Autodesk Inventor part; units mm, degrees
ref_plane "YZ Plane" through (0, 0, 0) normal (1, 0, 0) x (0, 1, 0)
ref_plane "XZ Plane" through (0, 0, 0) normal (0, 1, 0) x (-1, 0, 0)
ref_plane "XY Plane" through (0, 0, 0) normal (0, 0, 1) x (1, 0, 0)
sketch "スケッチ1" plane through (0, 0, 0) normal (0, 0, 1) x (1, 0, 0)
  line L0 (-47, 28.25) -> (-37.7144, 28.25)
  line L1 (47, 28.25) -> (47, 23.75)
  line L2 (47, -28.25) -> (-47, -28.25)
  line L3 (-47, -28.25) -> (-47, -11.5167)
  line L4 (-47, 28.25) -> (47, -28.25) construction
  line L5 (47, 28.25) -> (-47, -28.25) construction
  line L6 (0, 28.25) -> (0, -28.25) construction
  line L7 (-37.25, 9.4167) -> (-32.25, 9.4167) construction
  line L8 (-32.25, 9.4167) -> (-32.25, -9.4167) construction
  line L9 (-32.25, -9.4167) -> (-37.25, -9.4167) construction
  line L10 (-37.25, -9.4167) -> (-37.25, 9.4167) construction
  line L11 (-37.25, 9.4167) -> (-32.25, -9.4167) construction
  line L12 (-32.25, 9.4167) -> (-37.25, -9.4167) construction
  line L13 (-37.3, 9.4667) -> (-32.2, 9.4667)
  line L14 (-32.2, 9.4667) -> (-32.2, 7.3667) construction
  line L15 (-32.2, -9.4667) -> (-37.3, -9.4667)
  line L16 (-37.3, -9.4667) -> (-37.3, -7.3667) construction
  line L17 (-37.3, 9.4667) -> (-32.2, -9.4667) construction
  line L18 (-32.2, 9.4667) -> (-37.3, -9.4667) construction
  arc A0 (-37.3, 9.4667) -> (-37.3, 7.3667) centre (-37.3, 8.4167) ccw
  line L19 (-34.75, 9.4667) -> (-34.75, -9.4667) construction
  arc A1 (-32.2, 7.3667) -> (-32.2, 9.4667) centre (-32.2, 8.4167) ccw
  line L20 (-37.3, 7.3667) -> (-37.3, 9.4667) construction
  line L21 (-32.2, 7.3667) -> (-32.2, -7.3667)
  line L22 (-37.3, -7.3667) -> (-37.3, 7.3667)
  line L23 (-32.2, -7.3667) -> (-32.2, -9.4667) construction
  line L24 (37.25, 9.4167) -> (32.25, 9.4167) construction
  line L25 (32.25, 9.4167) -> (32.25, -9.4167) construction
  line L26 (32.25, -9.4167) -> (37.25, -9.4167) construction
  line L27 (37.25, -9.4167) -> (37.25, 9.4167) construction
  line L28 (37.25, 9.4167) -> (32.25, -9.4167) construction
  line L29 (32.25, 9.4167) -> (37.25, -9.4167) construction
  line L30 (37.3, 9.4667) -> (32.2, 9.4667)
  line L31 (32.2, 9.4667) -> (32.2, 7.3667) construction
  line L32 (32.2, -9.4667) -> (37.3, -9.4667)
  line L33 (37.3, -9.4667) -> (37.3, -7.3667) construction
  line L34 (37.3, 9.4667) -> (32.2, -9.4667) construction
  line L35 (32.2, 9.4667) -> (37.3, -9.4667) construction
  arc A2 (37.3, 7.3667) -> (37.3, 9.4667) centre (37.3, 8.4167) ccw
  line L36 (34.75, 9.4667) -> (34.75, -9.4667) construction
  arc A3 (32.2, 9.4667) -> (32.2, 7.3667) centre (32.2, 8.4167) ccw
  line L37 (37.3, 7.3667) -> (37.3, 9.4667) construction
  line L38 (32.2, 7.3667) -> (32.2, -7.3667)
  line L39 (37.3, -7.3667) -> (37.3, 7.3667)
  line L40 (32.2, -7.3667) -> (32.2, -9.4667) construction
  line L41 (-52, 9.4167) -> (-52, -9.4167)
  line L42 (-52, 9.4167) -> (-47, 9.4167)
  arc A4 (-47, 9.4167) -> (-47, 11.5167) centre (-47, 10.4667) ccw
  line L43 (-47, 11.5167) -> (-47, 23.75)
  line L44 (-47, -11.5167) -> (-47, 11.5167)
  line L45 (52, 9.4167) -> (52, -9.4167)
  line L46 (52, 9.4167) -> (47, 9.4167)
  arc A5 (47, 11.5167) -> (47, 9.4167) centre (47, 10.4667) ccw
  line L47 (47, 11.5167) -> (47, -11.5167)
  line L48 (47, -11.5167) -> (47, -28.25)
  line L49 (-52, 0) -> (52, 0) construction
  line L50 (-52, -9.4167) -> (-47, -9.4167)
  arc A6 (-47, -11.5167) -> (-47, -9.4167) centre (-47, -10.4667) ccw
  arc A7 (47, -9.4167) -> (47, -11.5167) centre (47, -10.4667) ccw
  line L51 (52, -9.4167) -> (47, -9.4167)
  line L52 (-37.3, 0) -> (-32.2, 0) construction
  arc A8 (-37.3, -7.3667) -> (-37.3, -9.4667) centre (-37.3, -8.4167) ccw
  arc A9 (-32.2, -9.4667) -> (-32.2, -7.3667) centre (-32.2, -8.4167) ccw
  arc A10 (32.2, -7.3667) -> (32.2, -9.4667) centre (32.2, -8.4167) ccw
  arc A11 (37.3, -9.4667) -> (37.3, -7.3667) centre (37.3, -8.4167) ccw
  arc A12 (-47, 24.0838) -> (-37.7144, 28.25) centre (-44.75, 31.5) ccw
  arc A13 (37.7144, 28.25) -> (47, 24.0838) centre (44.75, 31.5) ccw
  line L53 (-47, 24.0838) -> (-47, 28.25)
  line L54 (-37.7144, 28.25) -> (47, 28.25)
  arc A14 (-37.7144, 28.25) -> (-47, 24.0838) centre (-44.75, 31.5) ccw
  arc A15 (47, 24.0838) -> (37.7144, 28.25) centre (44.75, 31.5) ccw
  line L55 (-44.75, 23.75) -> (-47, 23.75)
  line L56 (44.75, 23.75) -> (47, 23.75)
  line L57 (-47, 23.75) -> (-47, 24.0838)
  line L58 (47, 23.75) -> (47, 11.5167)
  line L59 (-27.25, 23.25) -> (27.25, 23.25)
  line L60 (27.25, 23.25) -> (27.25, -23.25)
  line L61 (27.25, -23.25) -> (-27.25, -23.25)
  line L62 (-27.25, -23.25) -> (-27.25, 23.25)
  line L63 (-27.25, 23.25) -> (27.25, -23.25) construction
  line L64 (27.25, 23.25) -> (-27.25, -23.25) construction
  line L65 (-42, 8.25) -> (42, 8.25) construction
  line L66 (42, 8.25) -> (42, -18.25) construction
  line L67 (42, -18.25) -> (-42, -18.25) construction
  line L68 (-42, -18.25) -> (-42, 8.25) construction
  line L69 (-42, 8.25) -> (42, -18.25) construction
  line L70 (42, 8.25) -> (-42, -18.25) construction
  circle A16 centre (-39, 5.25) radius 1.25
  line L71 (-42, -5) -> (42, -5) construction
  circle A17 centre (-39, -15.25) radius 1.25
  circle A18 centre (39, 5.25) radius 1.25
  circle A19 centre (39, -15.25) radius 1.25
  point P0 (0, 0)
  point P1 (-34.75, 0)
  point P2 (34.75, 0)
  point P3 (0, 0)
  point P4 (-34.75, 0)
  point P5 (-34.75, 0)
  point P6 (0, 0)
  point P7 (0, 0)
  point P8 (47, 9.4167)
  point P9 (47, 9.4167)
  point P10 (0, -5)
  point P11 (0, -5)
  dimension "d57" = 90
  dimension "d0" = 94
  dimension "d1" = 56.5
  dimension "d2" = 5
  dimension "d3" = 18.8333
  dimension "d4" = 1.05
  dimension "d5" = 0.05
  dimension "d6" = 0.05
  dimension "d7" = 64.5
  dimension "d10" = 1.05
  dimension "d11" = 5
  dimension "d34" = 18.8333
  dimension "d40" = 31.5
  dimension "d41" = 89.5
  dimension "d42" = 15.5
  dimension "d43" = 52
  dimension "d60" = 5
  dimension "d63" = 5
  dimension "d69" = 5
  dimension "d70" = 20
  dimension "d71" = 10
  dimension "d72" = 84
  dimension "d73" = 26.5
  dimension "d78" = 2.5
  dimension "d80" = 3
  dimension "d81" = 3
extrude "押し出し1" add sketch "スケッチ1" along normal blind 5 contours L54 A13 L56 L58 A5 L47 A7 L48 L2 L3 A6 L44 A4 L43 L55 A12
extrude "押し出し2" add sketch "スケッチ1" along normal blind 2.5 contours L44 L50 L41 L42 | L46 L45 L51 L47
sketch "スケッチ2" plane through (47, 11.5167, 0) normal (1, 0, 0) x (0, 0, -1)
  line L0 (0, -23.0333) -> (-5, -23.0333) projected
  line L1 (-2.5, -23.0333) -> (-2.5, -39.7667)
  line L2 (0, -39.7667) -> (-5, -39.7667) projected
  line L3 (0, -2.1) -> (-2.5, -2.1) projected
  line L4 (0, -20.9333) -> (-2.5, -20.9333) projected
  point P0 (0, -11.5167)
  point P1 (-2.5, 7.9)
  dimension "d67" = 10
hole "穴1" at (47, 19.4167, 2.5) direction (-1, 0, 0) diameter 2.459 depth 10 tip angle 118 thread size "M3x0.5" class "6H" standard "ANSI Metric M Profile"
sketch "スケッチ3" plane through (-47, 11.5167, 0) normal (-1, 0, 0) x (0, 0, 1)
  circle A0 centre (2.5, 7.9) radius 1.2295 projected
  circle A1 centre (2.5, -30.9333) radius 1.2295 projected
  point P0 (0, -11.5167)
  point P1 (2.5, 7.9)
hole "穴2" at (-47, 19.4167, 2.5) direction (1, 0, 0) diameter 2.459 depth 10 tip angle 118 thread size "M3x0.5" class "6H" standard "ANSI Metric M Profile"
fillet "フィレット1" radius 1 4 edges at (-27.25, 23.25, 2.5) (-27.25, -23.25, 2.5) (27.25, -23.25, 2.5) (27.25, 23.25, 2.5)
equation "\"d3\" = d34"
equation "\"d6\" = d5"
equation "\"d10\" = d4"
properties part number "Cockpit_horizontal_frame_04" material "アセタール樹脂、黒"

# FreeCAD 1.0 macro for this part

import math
import FreeCAD as App
import Part
import Sketcher
Q = App.Units.Quantity


def edges_at(feature, points):
    """Names of the edges that pass closest to the given points."""
    edges = feature.Shape.Edges
    near = lambda p: min(range(len(edges)), key=lambda i: edges[i].distToShape(Part.Vertex(*p))[0])
    return sorted({f"Edge{near(p) + 1}" for p in points})

doc = App.newDocument("Part")
params = doc.addObject("Spreadsheet::Sheet", "Params")
for row, (alias, value) in enumerate([
    ("sketch1_diameter", "2.5 mm"),
    ("sketch1_width", "94 mm"),
    ("sketch1_radius", "7.75 mm"),
    ("sketch1_radius2", "1.05 mm"),
    ("sketch1_width2", "5.1 mm"),
    ("pad1_length", "5 mm"),
    ("sketch2_width", "5 mm"),
    ("pad2_length", "2.5 mm"),
    ("hole_diameter", "2.459 mm"),
    ("hole_depth", "10 mm"),
    ("hole2_diameter", "2.459 mm"),
    ("hole2_depth", "10 mm"),
    ("fillet_radius", "1 mm"),
], start=1):
    params.set(f"A{row}", alias)
    params.set(f"B{row}", "=" + value)
    params.setAlias(f"B{row}", alias)

body = doc.addObject("PartDesign::Body", "Body")

# Sketch on XY plane
sketch1 = body.newObject("Sketcher::SketchObject", "Sketch")
sketch1.AttachmentSupport = (doc.getObject("XY_Plane"), [""])
sketch1.MapMode = "FlatFace"
sketch1.addGeometry(Part.LineSegment(App.Vector(37.7, 28.2, 0), App.Vector(-37.7, 28.2, 0)), False)
sketch1.addGeometry(Part.ArcOfCircle(Part.Circle(App.Vector(-44.8, 31.5, 0), App.Vector(0, 0, 1), 7.7), math.radians(-90), math.radians(-25)), False)
sketch1.addGeometry(Part.LineSegment(App.Vector(-44.8, 23.8, 0), App.Vector(-47, 23.8, 0)), False)
sketch1.addGeometry(Part.LineSegment(App.Vector(-47, 23.8, 0), App.Vector(-47, 11.5, 0)), False)
sketch1.addGeometry(Part.ArcOfCircle(Part.Circle(App.Vector(-47, 10.5, 0), App.Vector(0, 0, 1), 1), math.radians(-90), math.radians(90)), False)
sketch1.addGeometry(Part.LineSegment(App.Vector(-47, 9.4, 0), App.Vector(-47, -9.4, 0)), False)
sketch1.addGeometry(Part.ArcOfCircle(Part.Circle(App.Vector(-47, -10.5, 0), App.Vector(0, 0, 1), 1.1), math.radians(-90), math.radians(90)), False)
sketch1.addGeometry(Part.LineSegment(App.Vector(-47, -11.5, 0), App.Vector(-47, -28.2, 0)), False)
sketch1.addGeometry(Part.LineSegment(App.Vector(-47, -28.2, 0), App.Vector(47, -28.2, 0)), False)
sketch1.addGeometry(Part.LineSegment(App.Vector(47, -28.2, 0), App.Vector(47, -11.5, 0)), False)
sketch1.addGeometry(Part.ArcOfCircle(Part.Circle(App.Vector(47, -10.5, 0), App.Vector(0, 0, 1), 1), math.radians(90), math.radians(270)), False)
sketch1.addGeometry(Part.LineSegment(App.Vector(47, -9.4, 0), App.Vector(47, 9.4, 0)), False)
sketch1.addGeometry(Part.ArcOfCircle(Part.Circle(App.Vector(47, 10.5, 0), App.Vector(0, 0, 1), 1.1), math.radians(90), math.radians(270)), False)
sketch1.addGeometry(Part.LineSegment(App.Vector(47, 11.5, 0), App.Vector(47, 23.8, 0)), False)
sketch1.addGeometry(Part.LineSegment(App.Vector(47, 23.8, 0), App.Vector(44.8, 23.8, 0)), False)
sketch1.addGeometry(Part.ArcOfCircle(Part.Circle(App.Vector(44.8, 31.5, 0), App.Vector(0, 0, 1), 7.8), math.radians(-155), math.radians(-90)), False)
sketch1.addGeometry(Part.Circle(App.Vector(-39, -15.2, 0), App.Vector(0, 0, 1), 1.2), False)
sketch1.addGeometry(Part.ArcOfCircle(Part.Circle(App.Vector(-37.3, 8.4, 0), App.Vector(0, 0, 1), 1), math.radians(90), math.radians(270)), False)
sketch1.addGeometry(Part.LineSegment(App.Vector(-37.3, 9.5, 0), App.Vector(-32.2, 9.5, 0)), False)
sketch1.addGeometry(Part.ArcOfCircle(Part.Circle(App.Vector(-32.2, 8.4, 0), App.Vector(0, 0, 1), 1.1), math.radians(-90), math.radians(90)), False)
sketch1.addGeometry(Part.LineSegment(App.Vector(-32.2, 7.4, 0), App.Vector(-32.2, -7.4, 0)), False)
sketch1.addGeometry(Part.ArcOfCircle(Part.Circle(App.Vector(-32.2, -8.4, 0), App.Vector(0, 0, 1), 1), math.radians(-90), math.radians(90)), False)
sketch1.addGeometry(Part.LineSegment(App.Vector(-32.2, -9.5, 0), App.Vector(-37.3, -9.5, 0)), False)
sketch1.addGeometry(Part.ArcOfCircle(Part.Circle(App.Vector(-37.3, -8.4, 0), App.Vector(0, 0, 1), 1.1), math.radians(90), math.radians(270)), False)
sketch1.addGeometry(Part.LineSegment(App.Vector(-37.3, -7.4, 0), App.Vector(-37.3, 7.4, 0)), False)
sketch1.addGeometry(Part.Circle(App.Vector(-39, 5.2, 0), App.Vector(0, 0, 1), 1.2), False)
sketch1.addGeometry(Part.LineSegment(App.Vector(-27.2, -23.2, 0), App.Vector(-27.2, 23.2, 0)), False)
sketch1.addGeometry(Part.LineSegment(App.Vector(-27.2, 23.2, 0), App.Vector(27.2, 23.2, 0)), False)
sketch1.addGeometry(Part.LineSegment(App.Vector(27.2, 23.2, 0), App.Vector(27.2, -23.2, 0)), False)
sketch1.addGeometry(Part.LineSegment(App.Vector(27.2, -23.2, 0), App.Vector(-27.2, -23.2, 0)), False)
sketch1.addGeometry(Part.Circle(App.Vector(39, -15.2, 0), App.Vector(0, 0, 1), 1.2), False)
sketch1.addGeometry(Part.LineSegment(App.Vector(32.2, 9.5, 0), App.Vector(37.3, 9.5, 0)), False)
sketch1.addGeometry(Part.ArcOfCircle(Part.Circle(App.Vector(37.3, 8.4, 0), App.Vector(0, 0, 1), 1.1), math.radians(-90), math.radians(90)), False)
sketch1.addGeometry(Part.LineSegment(App.Vector(37.3, 7.4, 0), App.Vector(37.3, -7.4, 0)), False)
sketch1.addGeometry(Part.ArcOfCircle(Part.Circle(App.Vector(37.3, -8.4, 0), App.Vector(0, 0, 1), 1), math.radians(-90), math.radians(90)), False)
sketch1.addGeometry(Part.LineSegment(App.Vector(37.3, -9.5, 0), App.Vector(32.2, -9.5, 0)), False)
sketch1.addGeometry(Part.ArcOfCircle(Part.Circle(App.Vector(32.2, -8.4, 0), App.Vector(0, 0, 1), 1.1), math.radians(90), math.radians(270)), False)
sketch1.addGeometry(Part.LineSegment(App.Vector(32.2, -7.4, 0), App.Vector(32.2, 7.4, 0)), False)
sketch1.addGeometry(Part.ArcOfCircle(Part.Circle(App.Vector(32.2, 8.4, 0), App.Vector(0, 0, 1), 1), math.radians(90), math.radians(270)), False)
sketch1.addGeometry(Part.Circle(App.Vector(39, 5.2, 0), App.Vector(0, 0, 1), 1.2), False)
sketch1.addConstraint(Sketcher.Constraint("Coincident", 0, 2, 1, 2))
sketch1.addConstraint(Sketcher.Constraint("Tangent", 1, 1, 2, 1))
sketch1.addConstraint(Sketcher.Constraint("Coincident", 2, 2, 3, 1))
sketch1.addConstraint(Sketcher.Constraint("Coincident", 3, 2, 4, 2))
sketch1.addConstraint(Sketcher.Constraint("Coincident", 4, 1, 5, 1))
sketch1.addConstraint(Sketcher.Constraint("Coincident", 5, 2, 6, 2))
sketch1.addConstraint(Sketcher.Constraint("Coincident", 6, 1, 7, 1))
sketch1.addConstraint(Sketcher.Constraint("Coincident", 7, 2, 8, 1))
sketch1.addConstraint(Sketcher.Constraint("Coincident", 8, 2, 9, 1))
sketch1.addConstraint(Sketcher.Constraint("Coincident", 9, 2, 10, 2))
sketch1.addConstraint(Sketcher.Constraint("Coincident", 10, 1, 11, 1))
sketch1.addConstraint(Sketcher.Constraint("Coincident", 11, 2, 12, 2))
sketch1.addConstraint(Sketcher.Constraint("Coincident", 12, 1, 13, 1))
sketch1.addConstraint(Sketcher.Constraint("Coincident", 13, 2, 14, 1))
sketch1.addConstraint(Sketcher.Constraint("Tangent", 14, 2, 15, 2))
sketch1.addConstraint(Sketcher.Constraint("Coincident", 15, 1, 0, 1))
sketch1.addConstraint(Sketcher.Constraint("Tangent", 17, 1, 18, 1))
sketch1.addConstraint(Sketcher.Constraint("Tangent", 18, 2, 19, 2))
sketch1.addConstraint(Sketcher.Constraint("Coincident", 19, 1, 20, 1))
sketch1.addConstraint(Sketcher.Constraint("Coincident", 20, 2, 21, 2))
sketch1.addConstraint(Sketcher.Constraint("Tangent", 21, 1, 22, 1))
sketch1.addConstraint(Sketcher.Constraint("Tangent", 22, 2, 23, 2))
sketch1.addConstraint(Sketcher.Constraint("Coincident", 23, 1, 24, 1))
sketch1.addConstraint(Sketcher.Constraint("Coincident", 24, 2, 17, 2))
sketch1.addConstraint(Sketcher.Constraint("Coincident", 26, 2, 27, 1))
sketch1.addConstraint(Sketcher.Constraint("Coincident", 27, 2, 28, 1))
sketch1.addConstraint(Sketcher.Constraint("Coincident", 28, 2, 29, 1))
sketch1.addConstraint(Sketcher.Constraint("Coincident", 29, 2, 26, 1))
sketch1.addConstraint(Sketcher.Constraint("Tangent", 31, 2, 32, 2))
sketch1.addConstraint(Sketcher.Constraint("Coincident", 32, 1, 33, 1))
sketch1.addConstraint(Sketcher.Constraint("Coincident", 33, 2, 34, 2))
sketch1.addConstraint(Sketcher.Constraint("Tangent", 34, 1, 35, 1))
sketch1.addConstraint(Sketcher.Constraint("Tangent", 35, 2, 36, 2))
sketch1.addConstraint(Sketcher.Constraint("Coincident", 36, 1, 37, 1))
sketch1.addConstraint(Sketcher.Constraint("Coincident", 37, 2, 38, 2))
sketch1.addConstraint(Sketcher.Constraint("Tangent", 38, 1, 31, 1))
sketch1.addConstraint(Sketcher.Constraint("Horizontal", 0))
sketch1.addConstraint(Sketcher.Constraint("Horizontal", 2))
sketch1.addConstraint(Sketcher.Constraint("Vertical", 3))
sketch1.addConstraint(Sketcher.Constraint("Vertical", 5))
sketch1.addConstraint(Sketcher.Constraint("Vertical", 7))
sketch1.addConstraint(Sketcher.Constraint("Horizontal", 8))
sketch1.addConstraint(Sketcher.Constraint("Vertical", 9))
sketch1.addConstraint(Sketcher.Constraint("Vertical", 11))
sketch1.addConstraint(Sketcher.Constraint("Vertical", 13))
sketch1.addConstraint(Sketcher.Constraint("Horizontal", 14))
sketch1.addConstraint(Sketcher.Constraint("Horizontal", 18))
sketch1.addConstraint(Sketcher.Constraint("Vertical", 20))
sketch1.addConstraint(Sketcher.Constraint("Horizontal", 22))
sketch1.addConstraint(Sketcher.Constraint("Vertical", 24))
sketch1.addConstraint(Sketcher.Constraint("Vertical", 26))
sketch1.addConstraint(Sketcher.Constraint("Horizontal", 27))
sketch1.addConstraint(Sketcher.Constraint("Vertical", 28))
sketch1.addConstraint(Sketcher.Constraint("Horizontal", 29))
sketch1.addConstraint(Sketcher.Constraint("Horizontal", 31))
sketch1.addConstraint(Sketcher.Constraint("Vertical", 33))
sketch1.addConstraint(Sketcher.Constraint("Horizontal", 35))
sketch1.addConstraint(Sketcher.Constraint("Vertical", 37))
sketch1.addConstraint(Sketcher.Constraint("Equal", 4, 6))
sketch1.addConstraint(Sketcher.Constraint("Equal", 6, 10))
sketch1.addConstraint(Sketcher.Constraint("Equal", 10, 12))
sketch1.addConstraint(Sketcher.Constraint("Equal", 1, 15))
sketch1.addConstraint(Sketcher.Constraint("Equal", 12, 17))
sketch1.addConstraint(Sketcher.Constraint("Equal", 17, 19))
sketch1.addConstraint(Sketcher.Constraint("Equal", 19, 21))
sketch1.addConstraint(Sketcher.Constraint("Equal", 21, 23))
sketch1.addConstraint(Sketcher.Constraint("Equal", 16, 25))
sketch1.addConstraint(Sketcher.Constraint("Equal", 25, 30))
sketch1.addConstraint(Sketcher.Constraint("Equal", 23, 32))
sketch1.addConstraint(Sketcher.Constraint("Equal", 32, 34))
sketch1.addConstraint(Sketcher.Constraint("Equal", 34, 36))
sketch1.addConstraint(Sketcher.Constraint("Equal", 36, 38))
sketch1.addConstraint(Sketcher.Constraint("Equal", 30, 39))
sketch1.addConstraint(Sketcher.Constraint("Symmetric", 4, 3, 10, 3, -1, 1))
sketch1.addConstraint(Sketcher.Constraint("Symmetric", 6, 3, 12, 3, -1, 1))
sketch1.addConstraint(Sketcher.Constraint("Symmetric", 23, 3, 32, 3, -1, 1))
sketch1.addConstraint(Sketcher.Constraint("Symmetric", 17, 3, 34, 3, -1, 1))
sketch1.addConstraint(Sketcher.Constraint("Symmetric", 26, 2, 28, 2, -1, 1))
sketch1.addConstraint(Sketcher.Constraint("Symmetric", 6, 3, 10, 3, -2))
sketch1.addConstraint(Sketcher.Constraint("Symmetric", 1, 3, 15, 3, -2))
sketch1.addConstraint(Sketcher.Constraint("Symmetric", 16, 3, 30, 3, -2))
sketch1.addConstraint(Sketcher.Constraint("Symmetric", 17, 3, 32, 3, -2))
sketch1.addConstraint(Sketcher.Constraint("Symmetric", 25, 3, 39, 3, -2))
sketch1.addConstraint(Sketcher.Constraint("Vertical", 19, 3, 21, 3))
sketch1.addConstraint(Sketcher.Constraint("Vertical", 16, 3, 25, 3))
sketch1.addConstraint(Sketcher.Constraint("Vertical", 36, 3, 38, 3))
sketch1.addConstraint(Sketcher.Constraint("Vertical", 6, 3, 2, 2))
sketch1.addConstraint(Sketcher.Constraint("Vertical", 3, 2, 4, 1))
sketch1.addConstraint(Sketcher.Constraint("Vertical", 5, 2, 6, 1))
sketch1.addConstraint(Sketcher.Constraint("Vertical", 12, 3, 8, 2))
sketch1.addConstraint(Sketcher.Constraint("Vertical", 9, 2, 10, 1))
sketch1.addConstraint(Sketcher.Constraint("Vertical", 11, 2, 12, 1))
sketch1.addConstraint(Sketcher.Constraint("Vertical", 18, 2, 19, 1))
sketch1.addConstraint(Sketcher.Constraint("Vertical", 22, 2, 23, 1))
sketch1.addConstraint(Sketcher.Constraint("Vertical", 31, 2, 32, 1))
sketch1.addConstraint(Sketcher.Constraint("Vertical", 35, 2, 36, 1))
sketch1.addConstraint(Sketcher.Constraint("Equal", 22, 31))
sketch1.addConstraint(Sketcher.Constraint("Diameter", 16, Q("2.5 mm")))
sketch1.addConstraint(Sketcher.Constraint("DistanceX", 8, 1, 8, 2, Q("94 mm")))
sketch1.addConstraint(Sketcher.Constraint("Radius", 1, Q("7.75 mm")))
sketch1.addConstraint(Sketcher.Constraint("Radius", 4, Q("1.05 mm")))
sketch1.addConstraint(Sketcher.Constraint("DistanceY", 26, 2, 0, 2, Q("5 mm")))
sketch1.addConstraint(Sketcher.Constraint("DistanceY", 8, 2, 28, 2, Q("5 mm")))
sketch1.addConstraint(Sketcher.Constraint("DistanceY", -1, 1, 1, 3, Q("31.5 mm")))
sketch1.addConstraint(Sketcher.Constraint("DistanceX", 1, 3, 15, 3, Q("89.5 mm")))
sketch1.addConstraint(Sketcher.Constraint("DistanceY", 4, 1, 17, 1, Q("0.05 mm")))
sketch1.addConstraint(Sketcher.Constraint("DistanceX", 18, 1, 18, 2, Q("5.1 mm")))
sketch1.addConstraint(Sketcher.Constraint("DistanceX", 27, 1, 27, 2, Q("54.5 mm")))
sketch1.addConstraint(Sketcher.Constraint("DistanceY", 5, 2, 5, 1, Q("18.8334 mm")))
sketch1.addConstraint(Sketcher.Constraint("DistanceY", 26, 1, 26, 2, Q("46.5 mm")))
sketch1.addConstraint(Sketcher.Constraint("DistanceX", 16, 3, -1, 1, Q("39 mm")))
sketch1.addConstraint(Sketcher.Constraint("DistanceY", 25, 3, 0, 2, Q("23 mm")))
sketch1.addConstraint(Sketcher.Constraint("DistanceY", 7, 2, 16, 3, Q("13 mm")))
sketch1.addConstraint(Sketcher.Constraint("DistanceX", 17, 3, -1, 1, Q("37.3 mm")))
sketch1.setExpression("Constraints[97]", "Params.sketch1_diameter")
sketch1.setExpression("Constraints[98]", "Params.sketch1_width")
sketch1.setExpression("Constraints[99]", "Params.sketch1_radius")
sketch1.setExpression("Constraints[100]", "Params.sketch1_radius2")
sketch1.setExpression("Constraints[106]", "Params.sketch1_width2")
pad1 = body.newObject("PartDesign::Pad", "Pad")
pad1.Profile = sketch1
pad1.setExpression("Length", "Params.pad1_length")

# Sketch on XY plane
sketch2 = body.newObject("Sketcher::SketchObject", "Sketch001")
sketch2.AttachmentSupport = (doc.getObject("XY_Plane"), [""])
sketch2.MapMode = "FlatFace"
sketch2.addGeometry(Part.LineSegment(App.Vector(-47, -9, 0), App.Vector(-47, 9, 0)), False)
sketch2.addGeometry(Part.LineSegment(App.Vector(-47, 9, 0), App.Vector(-52, 9, 0)), False)
sketch2.addGeometry(Part.LineSegment(App.Vector(-52, 9, 0), App.Vector(-52, -9, 0)), False)
sketch2.addGeometry(Part.LineSegment(App.Vector(-52, -9, 0), App.Vector(-47, -9, 0)), False)
sketch2.addGeometry(Part.LineSegment(App.Vector(52, 9, 0), App.Vector(47, 9, 0)), False)
sketch2.addGeometry(Part.LineSegment(App.Vector(47, 9, 0), App.Vector(47, -9, 0)), False)
sketch2.addGeometry(Part.LineSegment(App.Vector(47, -9, 0), App.Vector(52, -9, 0)), False)
sketch2.addGeometry(Part.LineSegment(App.Vector(52, -9, 0), App.Vector(52, 9, 0)), False)
sketch2.addConstraint(Sketcher.Constraint("Coincident", 0, 2, 1, 1))
sketch2.addConstraint(Sketcher.Constraint("Coincident", 1, 2, 2, 1))
sketch2.addConstraint(Sketcher.Constraint("Coincident", 2, 2, 3, 1))
sketch2.addConstraint(Sketcher.Constraint("Coincident", 3, 2, 0, 1))
sketch2.addConstraint(Sketcher.Constraint("Coincident", 4, 2, 5, 1))
sketch2.addConstraint(Sketcher.Constraint("Coincident", 5, 2, 6, 1))
sketch2.addConstraint(Sketcher.Constraint("Coincident", 6, 2, 7, 1))
sketch2.addConstraint(Sketcher.Constraint("Coincident", 7, 2, 4, 1))
sketch2.addConstraint(Sketcher.Constraint("Vertical", 0))
sketch2.addConstraint(Sketcher.Constraint("Horizontal", 1))
sketch2.addConstraint(Sketcher.Constraint("Vertical", 2))
sketch2.addConstraint(Sketcher.Constraint("Horizontal", 3))
sketch2.addConstraint(Sketcher.Constraint("Horizontal", 4))
sketch2.addConstraint(Sketcher.Constraint("Vertical", 5))
sketch2.addConstraint(Sketcher.Constraint("Horizontal", 6))
sketch2.addConstraint(Sketcher.Constraint("Vertical", 7))
sketch2.addConstraint(Sketcher.Constraint("Symmetric", 3, 2, 4, 2, -1, 1))
sketch2.addConstraint(Sketcher.Constraint("Symmetric", 1, 2, 6, 2, -1, 1))
sketch2.addConstraint(Sketcher.Constraint("Horizontal", 1, 2, 4, 2))
sketch2.addConstraint(Sketcher.Constraint("DistanceX", 1, 2, 1, 1, Q("5 mm")))
sketch2.addConstraint(Sketcher.Constraint("DistanceX", 1, 2, -1, 1, Q("52 mm")))
sketch2.addConstraint(Sketcher.Constraint("DistanceY", 0, 1, 0, 2, Q("18.8334 mm")))
sketch2.setExpression("Constraints[19]", "Params.sketch2_width")
pad2 = body.newObject("PartDesign::Pad", "Pad001")
pad2.Profile = sketch2
pad2.setExpression("Length", "Params.pad2_length")

# Sketch on YZ plane
sketch3 = body.newObject("Sketcher::SketchObject", "Sketch002")
sketch3.AttachmentSupport = (doc.getObject("YZ_Plane"), [""])
sketch3.MapMode = "FlatFace"
sketch3.AttachmentOffset = App.Placement(App.Vector(0, 0, 47), App.Rotation())
sketch3.addGeometry(Part.Circle(App.Vector(19.4, 2.5, 0), App.Vector(0, 0, 1), 1.2), False)
sketch3.addConstraint(Sketcher.Constraint("Diameter", 0, Q("2.459 mm")))
sketch3.addConstraint(Sketcher.Constraint("DistanceY", -1, 1, 0, 3, Q("2.5 mm")))
sketch3.addConstraint(Sketcher.Constraint("DistanceX", -1, 1, 0, 3, Q("19.4167 mm")))
doc.recompute()
hole = body.newObject("PartDesign::Hole", "Hole")
hole.Profile = sketch3
hole.ThreadType = "None"
hole.setExpression("Diameter", "Params.hole_diameter")
hole.DepthType = "Dimension"
hole.setExpression("Depth", "Params.hole_depth")
hole.DrillPoint = "Angled"
hole.DrillPointAngle = 118

# Sketch on YZ plane
sketch4 = body.newObject("Sketcher::SketchObject", "Sketch003")
sketch4.AttachmentSupport = (doc.getObject("YZ_Plane"), [""])
sketch4.MapMode = "FlatFace"
sketch4.AttachmentOffset = App.Placement(App.Vector(0, 0, -47), App.Rotation())
sketch4.addGeometry(Part.Circle(App.Vector(19.4, 2.5, 0), App.Vector(0, 0, 1), 1.2), False)
sketch4.addConstraint(Sketcher.Constraint("Diameter", 0, Q("2.459 mm")))
sketch4.addConstraint(Sketcher.Constraint("DistanceY", -1, 1, 0, 3, Q("2.5 mm")))
sketch4.addConstraint(Sketcher.Constraint("DistanceX", -1, 1, 0, 3, Q("19.4167 mm")))
doc.recompute()
hole2 = body.newObject("PartDesign::Hole", "Hole001")
hole2.Profile = sketch4
hole2.ThreadType = "None"
hole2.setExpression("Diameter", "Params.hole2_diameter")
hole2.DepthType = "Dimension"
hole2.setExpression("Depth", "Params.hole2_depth")
hole2.DrillPoint = "Angled"
hole2.DrillPointAngle = 118
hole2.Reversed = True
doc.recompute()

fillet = body.newObject("PartDesign::Fillet", "Fillet")
fillet.Base = (hole2, edges_at(hole2, [
    (-27.25, 23.25, 2.5),
    (-27.25, -23.25, 2.5),
    (27.25, -23.25, 2.5),
    (27.25, 23.25, 2.5),
]))
fillet.setExpression("Radius", "Params.fillet_radius")

doc.recompute()
